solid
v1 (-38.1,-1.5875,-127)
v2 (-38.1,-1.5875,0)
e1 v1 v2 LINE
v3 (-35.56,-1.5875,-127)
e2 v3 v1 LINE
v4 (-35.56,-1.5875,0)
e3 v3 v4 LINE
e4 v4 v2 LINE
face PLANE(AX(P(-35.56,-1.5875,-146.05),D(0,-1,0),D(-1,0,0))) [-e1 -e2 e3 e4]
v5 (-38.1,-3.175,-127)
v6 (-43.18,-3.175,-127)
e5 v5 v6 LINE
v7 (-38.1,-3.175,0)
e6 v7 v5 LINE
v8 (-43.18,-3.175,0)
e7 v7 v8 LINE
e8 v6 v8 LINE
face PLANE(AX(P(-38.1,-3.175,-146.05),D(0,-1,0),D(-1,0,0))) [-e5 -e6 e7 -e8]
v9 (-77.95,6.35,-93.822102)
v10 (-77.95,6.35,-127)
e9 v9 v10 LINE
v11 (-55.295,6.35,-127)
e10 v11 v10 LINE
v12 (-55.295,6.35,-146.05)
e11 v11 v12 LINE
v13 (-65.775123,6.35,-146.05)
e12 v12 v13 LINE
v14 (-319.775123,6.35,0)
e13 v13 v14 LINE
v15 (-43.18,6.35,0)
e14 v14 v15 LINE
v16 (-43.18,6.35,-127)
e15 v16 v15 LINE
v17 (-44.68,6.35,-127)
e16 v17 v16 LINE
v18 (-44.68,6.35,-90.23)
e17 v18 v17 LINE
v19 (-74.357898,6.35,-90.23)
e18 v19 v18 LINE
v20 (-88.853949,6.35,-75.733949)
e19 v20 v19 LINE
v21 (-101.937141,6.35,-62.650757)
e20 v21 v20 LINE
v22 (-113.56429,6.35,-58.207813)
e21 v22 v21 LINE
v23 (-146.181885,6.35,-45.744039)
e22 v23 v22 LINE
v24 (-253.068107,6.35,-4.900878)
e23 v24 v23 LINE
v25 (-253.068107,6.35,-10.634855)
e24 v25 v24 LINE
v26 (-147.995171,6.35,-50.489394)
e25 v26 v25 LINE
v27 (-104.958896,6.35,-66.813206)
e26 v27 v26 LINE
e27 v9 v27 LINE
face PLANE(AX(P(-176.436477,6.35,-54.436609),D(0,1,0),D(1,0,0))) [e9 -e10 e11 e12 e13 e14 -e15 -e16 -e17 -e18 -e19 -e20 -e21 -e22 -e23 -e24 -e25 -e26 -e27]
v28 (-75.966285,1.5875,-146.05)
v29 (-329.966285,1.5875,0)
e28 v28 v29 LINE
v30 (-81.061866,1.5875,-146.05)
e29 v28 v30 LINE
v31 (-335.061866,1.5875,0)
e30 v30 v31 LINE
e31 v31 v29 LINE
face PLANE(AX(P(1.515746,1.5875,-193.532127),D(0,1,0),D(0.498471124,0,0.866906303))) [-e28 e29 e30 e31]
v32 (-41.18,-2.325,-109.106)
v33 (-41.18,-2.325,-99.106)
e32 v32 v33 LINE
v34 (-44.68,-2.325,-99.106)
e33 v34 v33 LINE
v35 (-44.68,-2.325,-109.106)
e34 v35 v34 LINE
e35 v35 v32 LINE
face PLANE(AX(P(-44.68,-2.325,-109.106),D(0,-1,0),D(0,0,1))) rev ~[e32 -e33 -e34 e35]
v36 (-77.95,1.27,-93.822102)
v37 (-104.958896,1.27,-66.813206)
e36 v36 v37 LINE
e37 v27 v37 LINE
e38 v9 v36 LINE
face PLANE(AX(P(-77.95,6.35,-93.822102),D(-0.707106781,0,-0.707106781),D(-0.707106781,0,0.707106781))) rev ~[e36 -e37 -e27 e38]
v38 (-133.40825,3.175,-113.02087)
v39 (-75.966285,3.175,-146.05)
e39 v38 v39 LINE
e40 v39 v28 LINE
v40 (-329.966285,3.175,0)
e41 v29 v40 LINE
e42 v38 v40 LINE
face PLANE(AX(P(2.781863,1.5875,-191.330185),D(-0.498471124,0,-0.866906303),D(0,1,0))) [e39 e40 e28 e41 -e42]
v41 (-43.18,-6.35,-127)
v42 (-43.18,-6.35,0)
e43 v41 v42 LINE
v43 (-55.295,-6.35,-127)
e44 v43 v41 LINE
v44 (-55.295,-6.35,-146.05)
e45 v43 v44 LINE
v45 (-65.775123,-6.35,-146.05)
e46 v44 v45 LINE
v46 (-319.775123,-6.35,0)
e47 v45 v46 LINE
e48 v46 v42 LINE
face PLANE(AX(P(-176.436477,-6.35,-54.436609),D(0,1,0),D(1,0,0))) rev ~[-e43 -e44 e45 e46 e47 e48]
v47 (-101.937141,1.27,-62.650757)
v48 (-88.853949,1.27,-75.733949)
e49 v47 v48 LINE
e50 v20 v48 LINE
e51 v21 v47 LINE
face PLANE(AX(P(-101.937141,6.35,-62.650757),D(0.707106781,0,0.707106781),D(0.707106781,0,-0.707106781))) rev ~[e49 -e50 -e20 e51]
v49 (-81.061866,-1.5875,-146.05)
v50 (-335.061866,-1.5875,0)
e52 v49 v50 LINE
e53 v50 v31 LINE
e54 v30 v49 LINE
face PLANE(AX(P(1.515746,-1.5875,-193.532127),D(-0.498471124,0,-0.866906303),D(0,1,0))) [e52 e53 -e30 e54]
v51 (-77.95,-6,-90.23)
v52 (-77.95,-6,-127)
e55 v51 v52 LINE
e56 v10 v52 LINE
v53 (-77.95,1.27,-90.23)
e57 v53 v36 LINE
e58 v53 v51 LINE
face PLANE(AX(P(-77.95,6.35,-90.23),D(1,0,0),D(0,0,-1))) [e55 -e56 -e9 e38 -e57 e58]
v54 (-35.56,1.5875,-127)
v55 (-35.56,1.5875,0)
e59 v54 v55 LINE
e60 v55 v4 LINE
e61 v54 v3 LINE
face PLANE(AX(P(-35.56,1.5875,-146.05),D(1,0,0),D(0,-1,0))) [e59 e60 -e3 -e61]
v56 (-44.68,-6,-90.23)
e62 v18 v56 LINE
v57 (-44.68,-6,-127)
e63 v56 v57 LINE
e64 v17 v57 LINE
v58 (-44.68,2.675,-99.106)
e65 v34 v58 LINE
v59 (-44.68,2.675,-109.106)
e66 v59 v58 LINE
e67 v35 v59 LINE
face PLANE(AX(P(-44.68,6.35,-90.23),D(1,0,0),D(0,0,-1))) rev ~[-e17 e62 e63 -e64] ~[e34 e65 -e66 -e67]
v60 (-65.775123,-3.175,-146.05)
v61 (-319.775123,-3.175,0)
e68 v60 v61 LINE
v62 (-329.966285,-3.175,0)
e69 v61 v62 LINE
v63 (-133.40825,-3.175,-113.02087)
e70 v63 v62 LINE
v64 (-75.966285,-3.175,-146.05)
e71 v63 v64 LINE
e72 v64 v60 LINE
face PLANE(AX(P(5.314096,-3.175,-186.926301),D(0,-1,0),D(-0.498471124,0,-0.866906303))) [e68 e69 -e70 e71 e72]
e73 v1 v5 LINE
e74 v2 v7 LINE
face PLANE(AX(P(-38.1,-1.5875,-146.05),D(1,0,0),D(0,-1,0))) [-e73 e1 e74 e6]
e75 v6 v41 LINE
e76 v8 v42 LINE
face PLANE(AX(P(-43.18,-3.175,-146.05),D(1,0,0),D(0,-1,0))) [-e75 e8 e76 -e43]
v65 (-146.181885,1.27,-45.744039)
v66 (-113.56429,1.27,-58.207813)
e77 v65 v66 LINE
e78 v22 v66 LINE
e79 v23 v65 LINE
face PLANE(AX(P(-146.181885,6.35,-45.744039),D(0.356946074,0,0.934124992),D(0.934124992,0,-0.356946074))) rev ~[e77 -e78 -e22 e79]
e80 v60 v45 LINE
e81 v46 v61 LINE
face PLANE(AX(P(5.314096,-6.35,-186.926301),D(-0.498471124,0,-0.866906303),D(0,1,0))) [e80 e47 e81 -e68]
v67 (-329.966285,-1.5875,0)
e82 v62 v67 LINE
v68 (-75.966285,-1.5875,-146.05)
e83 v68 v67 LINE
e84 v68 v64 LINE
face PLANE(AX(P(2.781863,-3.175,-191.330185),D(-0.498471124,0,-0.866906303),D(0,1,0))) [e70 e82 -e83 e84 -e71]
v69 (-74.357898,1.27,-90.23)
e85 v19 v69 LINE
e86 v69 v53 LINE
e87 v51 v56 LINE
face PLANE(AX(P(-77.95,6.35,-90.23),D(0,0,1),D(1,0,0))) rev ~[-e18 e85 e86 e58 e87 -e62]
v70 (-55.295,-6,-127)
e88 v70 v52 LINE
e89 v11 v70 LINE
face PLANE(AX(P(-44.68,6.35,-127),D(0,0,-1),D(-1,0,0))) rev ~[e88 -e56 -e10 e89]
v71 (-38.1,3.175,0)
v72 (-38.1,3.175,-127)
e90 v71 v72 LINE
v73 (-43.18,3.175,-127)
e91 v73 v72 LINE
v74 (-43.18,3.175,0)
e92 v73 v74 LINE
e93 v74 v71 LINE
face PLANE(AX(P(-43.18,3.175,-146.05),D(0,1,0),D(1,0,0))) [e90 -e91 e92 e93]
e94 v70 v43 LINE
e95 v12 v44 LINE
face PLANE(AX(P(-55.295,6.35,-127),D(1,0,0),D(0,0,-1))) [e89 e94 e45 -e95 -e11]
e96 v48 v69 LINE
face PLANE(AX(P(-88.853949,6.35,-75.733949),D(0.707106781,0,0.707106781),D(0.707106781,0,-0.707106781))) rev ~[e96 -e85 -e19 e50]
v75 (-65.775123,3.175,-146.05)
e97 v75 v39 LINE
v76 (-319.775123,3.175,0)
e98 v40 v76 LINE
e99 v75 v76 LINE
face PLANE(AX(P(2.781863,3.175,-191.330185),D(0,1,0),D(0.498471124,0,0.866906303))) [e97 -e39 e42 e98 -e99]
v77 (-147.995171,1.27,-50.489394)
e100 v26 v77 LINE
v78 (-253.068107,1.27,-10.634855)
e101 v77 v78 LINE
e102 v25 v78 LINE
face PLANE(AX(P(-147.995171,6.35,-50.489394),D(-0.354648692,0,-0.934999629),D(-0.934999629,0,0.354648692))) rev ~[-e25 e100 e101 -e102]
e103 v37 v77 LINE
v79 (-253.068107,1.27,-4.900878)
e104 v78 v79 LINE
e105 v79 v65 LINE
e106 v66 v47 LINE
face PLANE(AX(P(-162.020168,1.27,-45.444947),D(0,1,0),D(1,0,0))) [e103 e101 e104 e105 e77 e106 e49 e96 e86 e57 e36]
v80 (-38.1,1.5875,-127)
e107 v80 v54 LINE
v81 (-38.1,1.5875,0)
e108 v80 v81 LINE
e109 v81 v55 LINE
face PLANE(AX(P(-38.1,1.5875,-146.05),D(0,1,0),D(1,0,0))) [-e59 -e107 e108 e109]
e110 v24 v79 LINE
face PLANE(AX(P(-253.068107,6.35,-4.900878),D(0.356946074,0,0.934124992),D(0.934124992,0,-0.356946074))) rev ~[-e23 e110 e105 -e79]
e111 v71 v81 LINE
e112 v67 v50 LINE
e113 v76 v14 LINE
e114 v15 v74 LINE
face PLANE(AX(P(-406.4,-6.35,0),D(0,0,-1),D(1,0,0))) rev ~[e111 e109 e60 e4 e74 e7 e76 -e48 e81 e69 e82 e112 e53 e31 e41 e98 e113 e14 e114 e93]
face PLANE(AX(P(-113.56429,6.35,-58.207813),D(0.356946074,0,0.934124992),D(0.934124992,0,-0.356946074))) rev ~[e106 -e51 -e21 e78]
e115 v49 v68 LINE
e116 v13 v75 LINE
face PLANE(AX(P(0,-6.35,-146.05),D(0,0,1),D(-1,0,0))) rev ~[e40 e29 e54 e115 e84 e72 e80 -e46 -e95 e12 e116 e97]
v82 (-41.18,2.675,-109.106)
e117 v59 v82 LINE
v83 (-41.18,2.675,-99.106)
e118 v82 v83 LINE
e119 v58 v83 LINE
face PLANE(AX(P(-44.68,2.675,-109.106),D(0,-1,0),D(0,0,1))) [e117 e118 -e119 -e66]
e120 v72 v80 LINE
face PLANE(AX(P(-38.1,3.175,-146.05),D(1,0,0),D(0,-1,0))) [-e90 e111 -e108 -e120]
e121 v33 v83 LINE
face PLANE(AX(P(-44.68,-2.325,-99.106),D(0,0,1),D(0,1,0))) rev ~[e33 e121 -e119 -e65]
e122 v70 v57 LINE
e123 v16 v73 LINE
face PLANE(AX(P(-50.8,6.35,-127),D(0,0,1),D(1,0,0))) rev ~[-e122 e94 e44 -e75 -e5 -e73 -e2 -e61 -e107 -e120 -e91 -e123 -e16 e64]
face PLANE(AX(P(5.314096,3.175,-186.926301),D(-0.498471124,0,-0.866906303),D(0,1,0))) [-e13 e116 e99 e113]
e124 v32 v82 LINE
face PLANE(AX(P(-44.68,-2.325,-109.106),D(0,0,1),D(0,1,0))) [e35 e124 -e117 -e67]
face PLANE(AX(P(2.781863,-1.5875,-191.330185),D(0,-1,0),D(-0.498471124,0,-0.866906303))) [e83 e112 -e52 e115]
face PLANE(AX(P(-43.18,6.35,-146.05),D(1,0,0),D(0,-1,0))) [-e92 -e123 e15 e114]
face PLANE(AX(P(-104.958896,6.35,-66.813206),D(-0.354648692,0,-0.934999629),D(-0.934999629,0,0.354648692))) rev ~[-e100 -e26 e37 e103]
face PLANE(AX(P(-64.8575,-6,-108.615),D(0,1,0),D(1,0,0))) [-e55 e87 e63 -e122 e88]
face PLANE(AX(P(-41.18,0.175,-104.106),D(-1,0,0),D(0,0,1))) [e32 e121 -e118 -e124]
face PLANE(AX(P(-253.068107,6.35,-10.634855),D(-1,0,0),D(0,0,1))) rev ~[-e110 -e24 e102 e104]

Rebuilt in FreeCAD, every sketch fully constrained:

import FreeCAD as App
import Part
import Sketcher
Q = App.Units.Quantity


def add_polygon(sketch, points):
    """Adds a closed chain of lines whose ends are joined by coincident constraints."""
    first, n = sketch.GeometryCount, len(points)
    for a, b in zip(points, points[1:] + points[:1]):
        sketch.addGeometry(Part.LineSegment(App.Vector(*a, 0), App.Vector(*b, 0)), False)
    for i in range(n):
        sketch.addConstraint(Sketcher.Constraint("Coincident", first + i, 2, first + (i + 1) % n, 1))

doc = App.newDocument("Part")
body = doc.addObject("PartDesign::Body", "Body")

sketch1 = body.newObject("Sketcher::SketchObject", "Sketch")
sketch1.AttachmentSupport = (doc.getObject("XZ_Plane"), [""])
sketch1.MapMode = "FlatFace"
add_polygon(sketch1, [(-406, 0), (0, 0), (0, -146), (-152, -146)])
sketch1.addConstraint([
    Sketcher.Constraint("Horizontal", 0),
    Sketcher.Constraint("Vertical", 1),
    Sketcher.Constraint("Horizontal", 2),
    Sketcher.Constraint("Coincident", 0, 2, -1, 1),
    Sketcher.Constraint("DistanceX", 0, 1, 0, 2, Q("16 in")),
    Sketcher.Constraint("DistanceX", 2, 2, 2, 1, Q("6 in")),
    Sketcher.Constraint("DistanceY", 1, 2, 1, 1, Q("5.75 in")),
])
pad1 = body.newObject("PartDesign::Pad", "Pad")
pad1.Profile = sketch1
pad1.Type = "TwoLengths"
pad1.Length = Q("0.25 in")
pad1.Length2 = Q("0.25 in")
pad1.Reversed = True

sketch2 = body.newObject("Sketcher::SketchObject", "Sketch001")
sketch2.Placement = App.Placement(App.Vector(-100.979615, 0, -175.616721), App.Rotation(App.Vector(-0.866906303, 0, 0.498471124), App.Vector(0, 1, 0), App.Vector(-0.498471124, 0, -0.866906303), "ZXY"))
add_polygon(sketch2, [(59.3, 6.3), (59.3, 3.2), (352.3, 3.2), (352.3, 6.3)])
add_polygon(sketch2, [(59.3, -3.2), (59.3, -6.3), (352.3, -6.3), (352.3, -3.2)])
sketch2.addConstraint([
    Sketcher.Constraint("Vertical", 0),
    Sketcher.Constraint("Horizontal", 1),
    Sketcher.Constraint("Vertical", 2),
    Sketcher.Constraint("Horizontal", 3),
    Sketcher.Constraint("Vertical", 4),
    Sketcher.Constraint("Horizontal", 5),
    Sketcher.Constraint("Vertical", 6),
    Sketcher.Constraint("Horizontal", 7),
    Sketcher.Constraint("Symmetric", 3, 2, 4, 2, -1),
    Sketcher.Constraint("Symmetric", 1, 2, 6, 2, -1),
    Sketcher.Constraint("DistanceY", 4, 2, 3, 2, Q("0.5 in")),
    Sketcher.Constraint("DistanceY", 0, 2, 0, 1, Q("0.125 in")),
    Sketcher.Constraint("DistanceX", 1, 1, 1, 2, Q("292.995909 mm")),
    Sketcher.Constraint("DistanceX", -1, 1, 1, 2, Q("352.310721 mm")),
])
pocket1 = body.newObject("PartDesign::Pocket", "Pocket")
pocket1.Profile = sketch2
pocket1.Length = Q("1.5 in")

sketch3 = body.newObject("Sketcher::SketchObject", "Sketch002")
sketch3.AttachmentSupport = (doc.getObject("YZ_Plane"), [""])
sketch3.MapMode = "FlatFace"
add_polygon(sketch3, [(6.3, 0), (3.2, 0), (3.2, -146.1), (6.3, -146.1)])
add_polygon(sketch3, [(-3.2, 0), (-6.3, 0), (-6.3, -146.1), (-3.2, -146.1)])
sketch3.addConstraint([
    Sketcher.Constraint("Horizontal", 0),
    Sketcher.Constraint("Vertical", 1),
    Sketcher.Constraint("Horizontal", 2),
    Sketcher.Constraint("Vertical", 3),
    Sketcher.Constraint("Horizontal", 4),
    Sketcher.Constraint("Vertical", 5),
    Sketcher.Constraint("Horizontal", 6),
    Sketcher.Constraint("Vertical", 7),
    Sketcher.Constraint("Symmetric", 3, 2, 4, 2, -1, 1),
    Sketcher.Constraint("Symmetric", 1, 2, 6, 2, -2),
    Sketcher.Constraint("PointOnObject", 0, 2, -1),
    Sketcher.Constraint("DistanceY", 1, 2, 1, 1, Q("5.75 in")),
    Sketcher.Constraint("DistanceX", 4, 2, 3, 2, Q("0.5 in")),
    Sketcher.Constraint("DistanceX", 0, 2, 0, 1, Q("0.125 in")),
])
pocket2 = body.newObject("PartDesign::Pocket", "Pocket001")
pocket2.Profile = sketch3
pocket2.Length = Q("1.5 in")

sketch4 = body.newObject("Sketcher::SketchObject", "Sketch003")
sketch4.AttachmentSupport = (doc.getObject("XZ_Plane"), [""])
sketch4.MapMode = "FlatFace"
sketch4.AttachmentOffset = App.Placement(App.Vector(0, 0, -0.25 * 25.4), App.Rotation())
add_polygon(sketch4, [(-133, -113), (-76, -146), (-152, -146)])
sketch4.addConstraint([
    Sketcher.Constraint("Horizontal", 1),
    Sketcher.Constraint("Perpendicular", 0, 2),
    Sketcher.Constraint("DistanceX", 1, 2, -1, 1, Q("6 in")),
    Sketcher.Constraint("Distance", 2, Q("1.5 in")),
    Sketcher.Constraint("DistanceY", 0, 2, -1, 1, Q("5.75 in")),
    Sketcher.Constraint("Distance", 0, Q("66.26087 mm")),
])
pocket3 = body.newObject("PartDesign::Pocket", "Pocket002")
pocket3.Profile = sketch4
pocket3.Length = Q("0.125 in")
pocket3.Reversed = True

sketch5 = body.newObject("Sketcher::SketchObject", "Sketch004")
sketch5.AttachmentSupport = (doc.getObject("XZ_Plane"), [""])
sketch5.MapMode = "FlatFace"
sketch5.AttachmentOffset = App.Placement(App.Vector(0, 0, 0.25 * 25.4), App.Rotation())
add_polygon(sketch5, [(-76, -146), (-133, -113), (-152, -146)])
sketch5.addConstraint([
    Sketcher.Constraint("Horizontal", 2),
    Sketcher.Constraint("Perpendicular", 0, 1),
    Sketcher.Constraint("DistanceX", 1, 2, -1, 1, Q("6 in")),
    Sketcher.Constraint("Distance", 1, Q("1.5 in")),
    Sketcher.Constraint("DistanceY", 1, 2, -1, 1, Q("5.75 in")),
    Sketcher.Constraint("Distance", 0, Q("66.26087 mm")),
])
pocket4 = body.newObject("PartDesign::Pocket", "Pocket003")
pocket4.Profile = sketch5
pocket4.Length = Q("0.125 in")

sketch6 = body.newObject("Sketcher::SketchObject", "Sketch005")
sketch6.AttachmentSupport = (doc.getObject("XY_Plane"), [""])
sketch6.MapMode = "FlatFace"
sketch6.AttachmentOffset = App.Placement(App.Vector(0, 0, -5.75 * 25.4), App.Rotation())
add_polygon(sketch6, [(-43.2, -3.2), (-38.1, -3.2), (-38.1, -1.6), (-35.6, -1.6), (-35.6, 1.6), (-38.1, 1.6), (-38.1, 3.2), (-43.2, 3.2), (-43.2, 6.3), (0, 6.3), (0, -6.3), (-43.2, -6.3)])
sketch6.addConstraint([
    Sketcher.Constraint("Horizontal", 0),
    Sketcher.Constraint("Vertical", 1),
    Sketcher.Constraint("Horizontal", 2),
    Sketcher.Constraint("Vertical", 3),
    Sketcher.Constraint("Horizontal", 4),
    Sketcher.Constraint("Vertical", 5),
    Sketcher.Constraint("Horizontal", 6),
    Sketcher.Constraint("Vertical", 7),
    Sketcher.Constraint("Horizontal", 8),
    Sketcher.Constraint("Vertical", 9),
    Sketcher.Constraint("Horizontal", 10),
    Sketcher.Constraint("Vertical", 11),
    Sketcher.Constraint("Symmetric", 8, 2, 9, 2, -1, 1),
    Sketcher.Constraint("Symmetric", 1, 2, 4, 2, -1),
    Sketcher.Constraint("Symmetric", 6, 2, 11, 2, -1),
    Sketcher.Constraint("Equal", 3, 7),
    Sketcher.Constraint("DistanceX", 0, 1, 0, 2, Q("0.2 in")),
    Sketcher.Constraint("DistanceX", 2, 1, 2, 2, Q("0.1 in")),
    Sketcher.Constraint("DistanceX", 8, 1, 8, 2, Q("1.7 in")),
    Sketcher.Constraint("DistanceY", 9, 2, 9, 1, Q("0.5 in")),
    Sketcher.Constraint("DistanceY", 1, 1, 1, 2, Q("0.0625 in")),
])
pocket5 = body.newObject("PartDesign::Pocket", "Pocket004")
pocket5.Profile = sketch6
pocket5.Length = Q("6.185 in")
pocket5.Reversed = True

sketch7 = body.newObject("Sketcher::SketchObject", "Sketch006")
sketch7.Placement = App.Placement(App.Vector(-51.420385, 0, 29.566721), App.Rotation(App.Vector(0.498471124, 0, 0.866906303), App.Vector(0, 1, 0), App.Vector(-0.866906303, 0, 0.498471124), "ZXY"))
add_polygon(sketch7, [(-164.5, 3.2), (-159.4, 3.2), (-159.4, 6.3), (-202.6, 6.3), (-202.6, -6.3), (-159.4, -6.3), (-159.4, -3.2), (-164.5, -3.2), (-164.5, -1.6), (-167, -1.6), (-167, 1.6), (-164.5, 1.6)])
sketch7.addConstraint([
    Sketcher.Constraint("Horizontal", 0),
    Sketcher.Constraint("Vertical", 1),
    Sketcher.Constraint("Horizontal", 2),
    Sketcher.Constraint("Vertical", 3),
    Sketcher.Constraint("Horizontal", 4),
    Sketcher.Constraint("Vertical", 5),
    Sketcher.Constraint("Horizontal", 6),
    Sketcher.Constraint("Vertical", 7),
    Sketcher.Constraint("Horizontal", 8),
    Sketcher.Constraint("Vertical", 9),
    Sketcher.Constraint("Horizontal", 10),
    Sketcher.Constraint("Vertical", 11),
    Sketcher.Constraint("Symmetric", 1, 2, 4, 2, -1),
    Sketcher.Constraint("Symmetric", 7, 2, 10, 2, -1),
    Sketcher.Constraint("Equal", 1, 5),
    Sketcher.Constraint("Equal", 5, 9),
    Sketcher.Constraint("DistanceX", 0, 1, 0, 2, Q("0.2 in")),
    Sketcher.Constraint("DistanceX", 2, 2, 2, 1, Q("1.7 in")),
    Sketcher.Constraint("DistanceX", 8, 2, 8, 1, Q("0.1 in")),
    Sketcher.Constraint("DistanceY", 3, 2, 3, 1, Q("0.5 in")),
    Sketcher.Constraint("DistanceY", 1, 1, 1, 2, Q("0.125 in")),
    Sketcher.Constraint("DistanceX", 0, 2, -1, 1, Q("159.398665 mm")),
])
pocket6 = body.newObject("PartDesign::Pocket", "Pocket005")
pocket6.Profile = sketch7
pocket6.Type = "ThroughAll"
pocket6.Midplane = True

sketch8 = body.newObject("Sketcher::SketchObject", "Sketch007")
sketch8.AttachmentSupport = (doc.getObject("XZ_Plane"), [""])
sketch8.MapMode = "FlatFace"
sketch8.AttachmentOffset = App.Placement(App.Vector(0, 0, -0.25 * 25.4), App.Rotation())
add_polygon(sketch8, [(-51, -146), (-51, -127), (0, -127), (0, -146)])
sketch8.addConstraint([
    Sketcher.Constraint("Vertical", 0),
    Sketcher.Constraint("Horizontal", 1),
    Sketcher.Constraint("Vertical", 2),
    Sketcher.Constraint("Horizontal", 3),
    Sketcher.Constraint("PointOnObject", 1, 2, -2),
    Sketcher.Constraint("DistanceX", 1, 1, 1, 2, Q("2 in")),
    Sketcher.Constraint("DistanceY", 0, 2, -1, 1, Q("5 in")),
    Sketcher.Constraint("DistanceY", 0, 1, 0, 2, Q("0.75 in")),
])
pocket7 = body.newObject("PartDesign::Pocket", "Pocket006")
pocket7.Profile = sketch8
pocket7.Length = Q("0.85 in")
pocket7.Reversed = True

sketch9 = body.newObject("Sketcher::SketchObject", "Sketch008")
sketch9.AttachmentSupport = (doc.getObject("XZ_Plane"), [""])
sketch9.MapMode = "FlatFace"
sketch9.AttachmentOffset = App.Placement(App.Vector(0, 0, -0.25 * 25.4), App.Rotation())
add_polygon(sketch9, [(-78, -127), (-78, -90), (-45, -90), (-45, -127)])
sketch9.addConstraint([
    Sketcher.Constraint("Vertical", 0),
    Sketcher.Constraint("Horizontal", 1),
    Sketcher.Constraint("Vertical", 2),
    Sketcher.Constraint("Horizontal", 3),
    Sketcher.Constraint("DistanceY", 2, 2, -1, 1, Q("5 in")),
    Sketcher.Constraint("DistanceX", 1, 1, 1, 2, Q("33.27 mm")),
    Sketcher.Constraint("DistanceY", 0, 1, 0, 2, Q("36.77 mm")),
    Sketcher.Constraint("DistanceX", 0, 2, -1, 1, Q("77.95 mm")),
])
pocket8 = body.newObject("PartDesign::Pocket", "Pocket007")
pocket8.Profile = sketch9
pocket8.Length = 12.35
pocket8.Reversed = True

sketch10 = body.newObject("Sketcher::SketchObject", "Sketch009")
sketch10.AttachmentSupport = (doc.getObject("XZ_Plane"), [""])
sketch10.MapMode = "FlatFace"
sketch10.AttachmentOffset = App.Placement(App.Vector(0, 0, -0.25 * 25.4), App.Rotation())
add_polygon(sketch10, [(-55.3, -146.1), (-55.3, -127), (-50.8, -127), (-50.8, -146.1)])
sketch10.addConstraint([
    Sketcher.Constraint("Vertical", 0),
    Sketcher.Constraint("Horizontal", 1),
    Sketcher.Constraint("Vertical", 2),
    Sketcher.Constraint("Horizontal", 3),
    Sketcher.Constraint("DistanceY", 0, 2, -1, 1, Q("5 in")),
    Sketcher.Constraint("DistanceX", 1, 2, -1, 1, Q("2 in")),
    Sketcher.Constraint("DistanceY", 0, 1, 0, 2, Q("0.75 in")),
    Sketcher.Constraint("DistanceX", 1, 1, 1, 2, Q("4.495 mm")),
])
pocket9 = body.newObject("PartDesign::Pocket", "Pocket008")
pocket9.Profile = sketch10
pocket9.Type = "ThroughAll"
pocket9.Reversed = True

sketch11 = body.newObject("Sketcher::SketchObject", "Sketch010")
sketch11.AttachmentSupport = (doc.getObject("XZ_Plane"), [""])
sketch11.MapMode = "FlatFace"
sketch11.AttachmentOffset = App.Placement(App.Vector(0, 0, -0.25 * 25.4), App.Rotation())
add_polygon(sketch11, [(-78, -90.2), (-78, -93.8), (-105, -66.8), (-148, -50.5), (-253.1, -10.6), (-253.1, -4.9), (-146.2, -45.7), (-113.6, -58.2), (-101.9, -62.7), (-88.9, -75.7), (-74.4, -90.2)])
sketch11.addConstraint([
    Sketcher.Constraint("Vertical", 0),
    Sketcher.Constraint("Vertical", 4),
    Sketcher.Constraint("Horizontal", 10),
    Sketcher.Constraint("Parallel", 2, 3),
    Sketcher.Constraint("Parallel", 5, 6),
    Sketcher.Constraint("Parallel", 6, 7),
    Sketcher.Constraint("Parallel", 1, 8),
    Sketcher.Constraint("Parallel", 8, 9),
    Sketcher.Constraint("Equal", 10, 0),
    Sketcher.Constraint("Angle", 1, Q("135 deg")),
    Sketcher.Constraint("DistanceX", 0, 2, -1, 1, Q("77.95 mm")),
    Sketcher.Constraint("DistanceY", 9, 2, -1, 1, Q("90.23 mm")),
    Sketcher.Constraint("DistanceX", 1, 2, 9, 2, Q("30.600998 mm")),
    Sketcher.Constraint("Distance", 2, Q("46.02812 mm")),
    Sketcher.Constraint("DistanceX", 10, 2, 10, 1, Q("3.592102 mm")),
    Sketcher.Constraint("DistanceY", 4, 1, 4, 2, Q("5.733977 mm")),
    Sketcher.Constraint("DistanceX", 2, 2, -1, 1, Q("147.995171 mm")),
    Sketcher.Constraint("DistanceY", 5, 2, -1, 1, Q("45.744039 mm")),
    Sketcher.Constraint("DistanceX", 6, 2, -1, 1, Q("113.56429 mm")),
    Sketcher.Constraint("DistanceX", 7, 2, -1, 1, Q("101.937141 mm")),
    Sketcher.Constraint("DistanceX", 8, 2, -1, 1, Q("88.853949 mm")),
    Sketcher.Constraint("DistanceY", 2, 2, 3, 2, Q("39.854539 mm")),
])
pocket10 = body.newObject("PartDesign::Pocket", "Pocket009")
pocket10.Profile = sketch11
pocket10.Length = Q("0.2 in")
pocket10.Reversed = True

sketch12 = body.newObject("Sketcher::SketchObject", "Sketch011")
sketch12.AttachmentSupport = (doc.getObject("YZ_Plane"), [""])
sketch12.MapMode = "FlatFace"
sketch12.AttachmentOffset = App.Placement(App.Vector(0, 0, -44.68), App.Rotation())
add_polygon(sketch12, [(2.7, -109.1), (-2.3, -109.1), (-2.3, -99.1), (2.7, -99.1)])
sketch12.addConstraint([
    Sketcher.Constraint("Horizontal", 0),
    Sketcher.Constraint("Vertical", 1),
    Sketcher.Constraint("Horizontal", 2),
    Sketcher.Constraint("Vertical", 3),
    Sketcher.Constraint("DistanceX", 0, 2, 0, 1, Q("5 mm")),
    Sketcher.Constraint("DistanceY", 1, 1, 1, 2, Q("10 mm")),
    Sketcher.Constraint("DistanceX", 0, 2, -1, 1, Q("2.325 mm")),
    Sketcher.Constraint("DistanceY", 0, 2, -1, 1, Q("109.106 mm")),
])
pocket11 = body.newObject("PartDesign::Pocket", "Pocket010")
pocket11.Profile = sketch12
pocket11.Length = 3.5
pocket11.Reversed = True

doc.recompute()
